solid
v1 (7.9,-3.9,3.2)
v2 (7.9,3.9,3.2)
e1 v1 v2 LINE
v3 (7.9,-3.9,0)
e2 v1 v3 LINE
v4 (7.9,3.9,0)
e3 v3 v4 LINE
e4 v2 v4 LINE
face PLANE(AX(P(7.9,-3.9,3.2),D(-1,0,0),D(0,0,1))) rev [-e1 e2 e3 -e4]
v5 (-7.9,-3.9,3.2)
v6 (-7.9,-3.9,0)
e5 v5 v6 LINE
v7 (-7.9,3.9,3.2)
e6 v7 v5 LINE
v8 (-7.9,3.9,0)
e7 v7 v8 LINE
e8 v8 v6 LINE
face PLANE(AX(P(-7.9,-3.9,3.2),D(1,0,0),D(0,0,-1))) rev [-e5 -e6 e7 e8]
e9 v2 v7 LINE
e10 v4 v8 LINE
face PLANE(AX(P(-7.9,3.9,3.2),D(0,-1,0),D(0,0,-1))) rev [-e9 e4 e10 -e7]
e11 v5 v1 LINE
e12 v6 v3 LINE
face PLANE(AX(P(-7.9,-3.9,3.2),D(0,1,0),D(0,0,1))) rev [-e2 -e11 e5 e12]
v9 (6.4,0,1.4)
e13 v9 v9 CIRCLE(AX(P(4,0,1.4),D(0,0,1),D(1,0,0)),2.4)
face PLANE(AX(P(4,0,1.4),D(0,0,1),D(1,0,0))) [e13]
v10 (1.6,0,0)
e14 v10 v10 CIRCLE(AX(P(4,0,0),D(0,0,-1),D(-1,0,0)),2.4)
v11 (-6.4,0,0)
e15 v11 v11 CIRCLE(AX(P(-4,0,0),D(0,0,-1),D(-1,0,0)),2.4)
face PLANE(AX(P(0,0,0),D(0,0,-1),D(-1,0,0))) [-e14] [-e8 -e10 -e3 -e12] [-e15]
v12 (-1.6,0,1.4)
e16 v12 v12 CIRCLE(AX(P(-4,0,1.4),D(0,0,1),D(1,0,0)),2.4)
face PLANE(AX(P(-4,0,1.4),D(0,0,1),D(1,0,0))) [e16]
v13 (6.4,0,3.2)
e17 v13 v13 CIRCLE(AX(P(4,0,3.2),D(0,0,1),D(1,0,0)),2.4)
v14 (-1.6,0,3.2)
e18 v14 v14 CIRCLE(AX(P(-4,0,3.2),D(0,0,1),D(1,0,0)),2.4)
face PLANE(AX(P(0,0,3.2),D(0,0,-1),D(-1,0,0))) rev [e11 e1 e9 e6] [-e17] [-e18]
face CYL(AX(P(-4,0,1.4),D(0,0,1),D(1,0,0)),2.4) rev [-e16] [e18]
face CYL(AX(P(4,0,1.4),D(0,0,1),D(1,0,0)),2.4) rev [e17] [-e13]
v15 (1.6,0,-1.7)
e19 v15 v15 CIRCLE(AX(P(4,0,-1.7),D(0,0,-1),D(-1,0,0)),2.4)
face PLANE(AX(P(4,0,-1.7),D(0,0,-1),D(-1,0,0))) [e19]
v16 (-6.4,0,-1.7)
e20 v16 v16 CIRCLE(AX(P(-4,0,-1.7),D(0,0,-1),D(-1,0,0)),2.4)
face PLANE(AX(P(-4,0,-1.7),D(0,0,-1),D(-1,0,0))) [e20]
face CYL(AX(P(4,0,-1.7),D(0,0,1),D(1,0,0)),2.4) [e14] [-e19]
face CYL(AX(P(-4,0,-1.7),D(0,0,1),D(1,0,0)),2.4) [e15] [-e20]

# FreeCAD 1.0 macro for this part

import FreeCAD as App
import Part
import Sketcher


def add_polygon(sketch, points):
    """Adds a closed chain of lines whose ends are joined by coincident constraints."""
    first, n = sketch.GeometryCount, len(points)
    for a, b in zip(points, points[1:] + points[:1]):
        sketch.addGeometry(Part.LineSegment(App.Vector(*a, 0), App.Vector(*b, 0)), False)
    for i in range(n):
        sketch.addConstraint(Sketcher.Constraint("Coincident", first + i, 2, first + (i + 1) % n, 1))

doc = App.newDocument("Part")
body = doc.addObject("PartDesign::Body", "Body")

# Sketch on XY plane
sketch1 = body.newObject("Sketcher::SketchObject", "Sketch")
sketch1.AttachmentSupport = (doc.getObject("XY_Plane"), [""])
sketch1.MapMode = "FlatFace"
add_polygon(sketch1, [(-7.9, 3.9), (-7.9, -3.9), (7.9, -3.9), (7.9, 3.9)])  # lines 0-3
sketch1.addConstraint(Sketcher.Constraint("Vertical", 0))
sketch1.addConstraint(Sketcher.Constraint("Horizontal", 1))
sketch1.addConstraint(Sketcher.Constraint("Vertical", 2))
sketch1.addConstraint(Sketcher.Constraint("Horizontal", 3))
sketch1.addConstraint(Sketcher.Constraint("Symmetric", 0, 2, 2, 2, -1, 1))
sketch1.addConstraint(Sketcher.Constraint("DistanceX", 1, 1, 1, 2, 15.8))
sketch1.addConstraint(Sketcher.Constraint("DistanceY", 0, 2, 0, 1, 7.8))
pad1 = body.newObject("PartDesign::Pad", "Pad")
pad1.Profile = sketch1
pad1.Length = 3.2

# Sketch on XY plane
sketch2 = body.newObject("Sketcher::SketchObject", "Sketch001")
sketch2.AttachmentSupport = (doc.getObject("XY_Plane"), [""])
sketch2.MapMode = "FlatFace"
sketch2.addGeometry(Part.Circle(App.Vector(4, 0, 0), App.Vector(0, 0, 1), 2.4), False)
sketch2.addGeometry(Part.Circle(App.Vector(-4, 0, 0), App.Vector(0, 0, 1), 2.4), False)
sketch2.addConstraint(Sketcher.Constraint("Equal", 0, 1))
sketch2.addConstraint(Sketcher.Constraint("Symmetric", 0, 3, 1, 3, -1, 1))
sketch2.addConstraint(Sketcher.Constraint("PointOnObject", 0, 3, -1))
sketch2.addConstraint(Sketcher.Constraint("Diameter", 0, 4.8))
sketch2.addConstraint(Sketcher.Constraint("DistanceX", -1, 1, 0, 3, 4.0))
pad2 = body.newObject("PartDesign::Pad", "Pad001")
pad2.Profile = sketch2
pad2.Length = 1.7
pad2.Reversed = True

# Sketch on XY plane
sketch3 = body.newObject("Sketcher::SketchObject", "Sketch002")
sketch3.AttachmentSupport = (doc.getObject("XY_Plane"), [""])
sketch3.MapMode = "FlatFace"
sketch3.AttachmentOffset = App.Placement(App.Vector(0, 0, 3.2), App.Rotation())
sketch3.addGeometry(Part.Circle(App.Vector(-4, 0, 0), App.Vector(0, 0, 1), 2.4), False)
sketch3.addGeometry(Part.Circle(App.Vector(4, 0, 0), App.Vector(0, 0, 1), 2.4), False)
sketch3.addConstraint(Sketcher.Constraint("Equal", 0, 1))
sketch3.addConstraint(Sketcher.Constraint("Symmetric", 0, 3, 1, 3, -1, 1))
sketch3.addConstraint(Sketcher.Constraint("PointOnObject", 0, 3, -1))
sketch3.addConstraint(Sketcher.Constraint("Diameter", 0, 4.8))
sketch3.addConstraint(Sketcher.Constraint("DistanceX", 0, 3, -1, 1, 4.0))
pocket1 = body.newObject("PartDesign::Pocket", "Pocket")
pocket1.Profile = sketch3
pocket1.Length = 1.8

doc.recompute()
